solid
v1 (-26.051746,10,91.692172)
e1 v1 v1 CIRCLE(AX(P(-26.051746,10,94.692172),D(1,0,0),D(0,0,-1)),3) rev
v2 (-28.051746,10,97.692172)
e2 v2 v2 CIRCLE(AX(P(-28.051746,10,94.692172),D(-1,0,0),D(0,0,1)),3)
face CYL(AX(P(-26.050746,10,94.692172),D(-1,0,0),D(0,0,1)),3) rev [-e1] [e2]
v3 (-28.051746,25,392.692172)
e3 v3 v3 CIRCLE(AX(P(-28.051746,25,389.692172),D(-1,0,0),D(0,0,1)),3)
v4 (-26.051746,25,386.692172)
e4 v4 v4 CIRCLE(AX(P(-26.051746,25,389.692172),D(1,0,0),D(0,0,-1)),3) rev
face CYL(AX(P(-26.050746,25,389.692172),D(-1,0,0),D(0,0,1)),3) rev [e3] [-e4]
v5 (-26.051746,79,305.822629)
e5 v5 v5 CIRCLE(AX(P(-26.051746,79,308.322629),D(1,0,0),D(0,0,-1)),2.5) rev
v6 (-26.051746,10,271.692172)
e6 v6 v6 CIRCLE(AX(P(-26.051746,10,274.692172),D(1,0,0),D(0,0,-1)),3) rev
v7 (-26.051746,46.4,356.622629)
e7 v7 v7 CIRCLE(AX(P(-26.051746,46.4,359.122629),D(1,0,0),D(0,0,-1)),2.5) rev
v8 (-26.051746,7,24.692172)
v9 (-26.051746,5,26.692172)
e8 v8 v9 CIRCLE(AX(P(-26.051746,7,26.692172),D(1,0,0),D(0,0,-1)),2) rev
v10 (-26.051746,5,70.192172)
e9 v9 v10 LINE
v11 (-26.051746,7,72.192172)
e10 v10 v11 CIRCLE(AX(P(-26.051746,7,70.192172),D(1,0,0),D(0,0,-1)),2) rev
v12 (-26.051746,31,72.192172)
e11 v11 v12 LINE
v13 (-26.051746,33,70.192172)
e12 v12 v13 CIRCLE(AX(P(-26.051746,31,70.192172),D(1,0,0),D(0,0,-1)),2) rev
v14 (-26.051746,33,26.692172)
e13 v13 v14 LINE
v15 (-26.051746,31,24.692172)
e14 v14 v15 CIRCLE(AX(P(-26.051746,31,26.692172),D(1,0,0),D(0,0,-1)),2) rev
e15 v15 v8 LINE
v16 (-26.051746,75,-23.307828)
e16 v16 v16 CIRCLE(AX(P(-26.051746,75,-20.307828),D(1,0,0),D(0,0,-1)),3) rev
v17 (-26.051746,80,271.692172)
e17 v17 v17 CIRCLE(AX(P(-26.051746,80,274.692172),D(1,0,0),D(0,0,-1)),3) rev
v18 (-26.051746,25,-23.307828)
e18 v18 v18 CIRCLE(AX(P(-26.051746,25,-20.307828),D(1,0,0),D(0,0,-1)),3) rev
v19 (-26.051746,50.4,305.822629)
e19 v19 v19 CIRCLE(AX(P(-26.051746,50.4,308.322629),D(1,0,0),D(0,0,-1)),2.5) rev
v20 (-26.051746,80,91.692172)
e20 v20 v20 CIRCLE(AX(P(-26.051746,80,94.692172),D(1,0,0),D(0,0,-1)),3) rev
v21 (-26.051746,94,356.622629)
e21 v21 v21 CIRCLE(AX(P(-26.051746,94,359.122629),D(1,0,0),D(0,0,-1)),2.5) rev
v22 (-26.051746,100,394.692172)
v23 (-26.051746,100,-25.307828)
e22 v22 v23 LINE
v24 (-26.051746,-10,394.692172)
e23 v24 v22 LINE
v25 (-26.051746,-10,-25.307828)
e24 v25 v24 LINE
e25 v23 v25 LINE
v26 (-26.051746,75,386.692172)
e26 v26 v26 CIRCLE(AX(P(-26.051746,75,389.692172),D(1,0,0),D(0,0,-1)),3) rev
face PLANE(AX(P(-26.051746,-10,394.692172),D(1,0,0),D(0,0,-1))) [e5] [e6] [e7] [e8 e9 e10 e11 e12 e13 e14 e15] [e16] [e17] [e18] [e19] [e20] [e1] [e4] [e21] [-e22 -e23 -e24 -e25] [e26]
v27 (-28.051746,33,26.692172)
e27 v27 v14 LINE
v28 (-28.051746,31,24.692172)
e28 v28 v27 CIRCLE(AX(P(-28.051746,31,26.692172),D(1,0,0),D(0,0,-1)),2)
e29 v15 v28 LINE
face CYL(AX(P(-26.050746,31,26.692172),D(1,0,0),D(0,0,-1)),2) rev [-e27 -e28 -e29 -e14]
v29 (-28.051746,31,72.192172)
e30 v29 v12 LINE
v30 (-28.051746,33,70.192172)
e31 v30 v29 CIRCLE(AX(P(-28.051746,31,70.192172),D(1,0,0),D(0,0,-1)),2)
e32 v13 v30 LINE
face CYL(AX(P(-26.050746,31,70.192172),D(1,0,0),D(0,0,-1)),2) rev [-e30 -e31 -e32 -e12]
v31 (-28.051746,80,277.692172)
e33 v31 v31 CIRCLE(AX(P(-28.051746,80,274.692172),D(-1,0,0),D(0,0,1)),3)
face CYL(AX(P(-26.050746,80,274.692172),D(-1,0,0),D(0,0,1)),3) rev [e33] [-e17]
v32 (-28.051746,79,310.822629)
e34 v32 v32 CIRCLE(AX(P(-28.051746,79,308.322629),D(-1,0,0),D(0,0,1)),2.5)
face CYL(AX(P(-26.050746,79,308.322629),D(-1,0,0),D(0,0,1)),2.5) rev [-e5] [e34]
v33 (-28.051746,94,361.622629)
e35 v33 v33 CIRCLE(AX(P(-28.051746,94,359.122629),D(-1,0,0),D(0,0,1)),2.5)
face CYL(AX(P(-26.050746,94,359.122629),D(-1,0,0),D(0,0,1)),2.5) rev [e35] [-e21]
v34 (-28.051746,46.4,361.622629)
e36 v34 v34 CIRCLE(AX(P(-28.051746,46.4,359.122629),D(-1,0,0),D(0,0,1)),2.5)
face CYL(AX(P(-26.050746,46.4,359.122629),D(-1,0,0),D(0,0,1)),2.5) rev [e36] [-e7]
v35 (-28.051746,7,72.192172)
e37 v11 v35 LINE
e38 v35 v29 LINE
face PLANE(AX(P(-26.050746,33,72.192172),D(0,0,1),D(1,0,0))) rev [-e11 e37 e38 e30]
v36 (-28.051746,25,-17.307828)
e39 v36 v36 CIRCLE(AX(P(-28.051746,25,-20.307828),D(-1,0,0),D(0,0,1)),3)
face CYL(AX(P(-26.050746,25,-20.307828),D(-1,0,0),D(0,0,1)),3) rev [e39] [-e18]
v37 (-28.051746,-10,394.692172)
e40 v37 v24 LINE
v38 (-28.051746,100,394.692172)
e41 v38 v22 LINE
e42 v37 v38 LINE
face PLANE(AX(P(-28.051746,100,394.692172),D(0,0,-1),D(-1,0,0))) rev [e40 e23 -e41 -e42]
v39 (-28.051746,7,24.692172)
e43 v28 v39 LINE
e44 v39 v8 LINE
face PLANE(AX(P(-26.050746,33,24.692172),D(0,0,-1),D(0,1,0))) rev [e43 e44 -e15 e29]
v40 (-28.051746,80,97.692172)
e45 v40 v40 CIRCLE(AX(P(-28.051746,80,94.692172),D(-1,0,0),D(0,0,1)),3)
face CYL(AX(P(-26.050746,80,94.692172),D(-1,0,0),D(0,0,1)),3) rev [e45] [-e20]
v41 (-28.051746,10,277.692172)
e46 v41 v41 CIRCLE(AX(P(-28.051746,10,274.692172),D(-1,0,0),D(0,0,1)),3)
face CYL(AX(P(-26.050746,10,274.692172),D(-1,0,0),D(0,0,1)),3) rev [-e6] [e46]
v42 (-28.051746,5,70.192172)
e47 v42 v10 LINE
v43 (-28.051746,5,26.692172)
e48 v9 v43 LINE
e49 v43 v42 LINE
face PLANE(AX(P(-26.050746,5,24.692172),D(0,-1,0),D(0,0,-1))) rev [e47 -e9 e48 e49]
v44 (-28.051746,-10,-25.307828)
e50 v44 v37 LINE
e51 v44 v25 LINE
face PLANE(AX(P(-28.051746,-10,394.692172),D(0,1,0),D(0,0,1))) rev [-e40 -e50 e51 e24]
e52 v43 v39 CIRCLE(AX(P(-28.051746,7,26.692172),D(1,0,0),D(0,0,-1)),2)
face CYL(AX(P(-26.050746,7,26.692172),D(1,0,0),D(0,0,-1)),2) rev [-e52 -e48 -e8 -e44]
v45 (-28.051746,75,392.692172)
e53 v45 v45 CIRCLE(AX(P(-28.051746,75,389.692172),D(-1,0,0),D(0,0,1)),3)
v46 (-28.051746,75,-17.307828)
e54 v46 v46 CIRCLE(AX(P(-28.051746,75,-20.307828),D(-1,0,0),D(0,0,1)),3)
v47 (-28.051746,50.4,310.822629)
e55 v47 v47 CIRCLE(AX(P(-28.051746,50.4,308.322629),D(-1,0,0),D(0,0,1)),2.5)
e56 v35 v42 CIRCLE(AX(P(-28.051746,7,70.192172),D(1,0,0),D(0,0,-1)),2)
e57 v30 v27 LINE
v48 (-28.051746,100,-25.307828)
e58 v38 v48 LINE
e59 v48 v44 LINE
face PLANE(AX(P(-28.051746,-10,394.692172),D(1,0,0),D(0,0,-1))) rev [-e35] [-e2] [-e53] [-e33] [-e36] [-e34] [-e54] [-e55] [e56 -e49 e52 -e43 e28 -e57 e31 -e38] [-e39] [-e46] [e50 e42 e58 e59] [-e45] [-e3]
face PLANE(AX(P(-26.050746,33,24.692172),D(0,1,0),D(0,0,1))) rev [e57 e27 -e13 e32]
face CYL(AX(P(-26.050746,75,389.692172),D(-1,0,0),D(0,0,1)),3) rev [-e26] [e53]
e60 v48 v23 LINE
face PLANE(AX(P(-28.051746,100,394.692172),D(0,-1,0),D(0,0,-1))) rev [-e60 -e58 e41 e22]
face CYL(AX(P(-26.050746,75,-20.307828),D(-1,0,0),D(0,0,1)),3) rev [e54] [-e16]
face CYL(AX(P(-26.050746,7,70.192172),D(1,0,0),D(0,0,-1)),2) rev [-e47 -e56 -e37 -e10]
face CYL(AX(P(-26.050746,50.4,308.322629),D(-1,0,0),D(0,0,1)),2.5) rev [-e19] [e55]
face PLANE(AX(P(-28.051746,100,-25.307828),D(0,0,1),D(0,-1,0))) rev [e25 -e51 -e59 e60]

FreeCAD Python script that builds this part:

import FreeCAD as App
import Part
import Sketcher

V = App.Vector


def edges_at(feature, points):
    """Names of the edges that pass closest to the given points."""
    edges = feature.Shape.Edges
    near = lambda p: min(range(len(edges)), key=lambda i: edges[i].distToShape(Part.Vertex(*p))[0])
    return sorted({f"Edge{near(p) + 1}" for p in points})


def add_polygon(sketch, points):
    """Adds a closed chain of lines whose ends are joined by coincident constraints."""
    first, n = sketch.GeometryCount, len(points)
    for a, b in zip(points, points[1:] + points[:1]):
        sketch.addGeometry(Part.LineSegment(App.Vector(*a, 0), App.Vector(*b, 0)), False)
    for i in range(n):
        sketch.addConstraint(Sketcher.Constraint("Coincident", first + i, 2, first + (i + 1) % n, 1))

doc = App.newDocument("Part")
params = doc.addObject("Spreadsheet::Sheet", "Params")
for row, (alias, value) in enumerate([
    ("sketch1_width", "110 mm"),
    ("sketch1_height", "420 mm"),
    ("pad1_length", "2 mm"),
    ("sketch2_diameter", "6 mm"),
    ("sketch3_diameter", "6 mm"),
    ("sketch4_diameter", "6 mm"),
    ("sketch5_diameter", "6 mm"),
    ("sketch6_diameter", "6 mm"),
    ("sketch7_diameter", "6 mm"),
    ("sketch8_diameter", "6 mm"),
    ("sketch9_diameter", "6 mm"),
    ("sketch10_diameter", "5 mm"),
    ("sketch11_diameter", "5 mm"),
    ("sketch12_diameter", "5 mm"),
    ("sketch13_diameter", "5 mm"),
    ("sketch14_width", "28 mm"),
    ("sketch14_height", "47.5 mm"),
    ("fillet_radius", "2 mm"),
], start=1):
    params.set(f"A{row}", alias)
    params.set(f"B{row}", "=" + value)
    params.setAlias(f"B{row}", alias)

body = doc.addObject("PartDesign::Body", "Body")

sketch1 = body.newObject("Sketcher::SketchObject", "Sketch")
sketch1.AttachmentSupport = (doc.getObject("YZ_Plane"), [""])
sketch1.MapMode = "FlatFace"
sketch1.AttachmentOffset = App.Placement(V(0, 0, -26.051746), App.Rotation())
add_polygon(sketch1, [(100, -25), (-10, -25), (-10, 395), (100, 395)])
sketch1.addConstraint([
    Sketcher.Constraint("Horizontal", 0),
    Sketcher.Constraint("Vertical", 1),
    Sketcher.Constraint("Horizontal", 2),
    Sketcher.Constraint("Vertical", 3),
    Sketcher.Constraint("DistanceX", 0, 2, 0, 1, 110.0),
    Sketcher.Constraint("DistanceY", 1, 1, 1, 2, 420.0),
    Sketcher.Constraint("DistanceX", 0, 2, -1, 1, 10.0),
    Sketcher.Constraint("DistanceY", 0, 2, -1, 1, 25.307828),
])
sketch1.setExpression("Constraints[8]", "Params.sketch1_width")
sketch1.setExpression("Constraints[9]", "Params.sketch1_height")
pad1 = body.newObject("PartDesign::Pad", "Pad")
pad1.Profile = sketch1
pad1.setExpression("Length", "Params.pad1_length")
pad1.Reversed = True

sketch2 = body.newObject("Sketcher::SketchObject", "Sketch001")
sketch2.AttachmentSupport = (doc.getObject("YZ_Plane"), [""])
sketch2.MapMode = "FlatFace"
sketch2.AttachmentOffset = App.Placement(V(0, 0, -28.051746), App.Rotation())
sketch2.addGeometry(Part.Circle(V(75, -20.3, 0), V(0, 0, 1), 3), False)
sketch2.addConstraint([
    Sketcher.Constraint("Diameter", 0, 6.0),
    Sketcher.Constraint("DistanceX", -1, 1, 0, 3, 75.0),
    Sketcher.Constraint("DistanceY", 0, 3, -1, 1, 20.307828),
])
sketch2.setExpression("Constraints[0]", "Params.sketch2_diameter")
pocket1 = body.newObject("PartDesign::Pocket", "Pocket")
pocket1.Profile = sketch2
pocket1.Type = "UpToFirst"
pocket1.Reversed = True

sketch3 = body.newObject("Sketcher::SketchObject", "Sketch002")
sketch3.AttachmentSupport = (doc.getObject("YZ_Plane"), [""])
sketch3.MapMode = "FlatFace"
sketch3.AttachmentOffset = App.Placement(V(0, 0, -28.051746), App.Rotation())
sketch3.addGeometry(Part.Circle(V(25, -20.3, 0), V(0, 0, 1), 3), False)
sketch3.addConstraint([
    Sketcher.Constraint("Diameter", 0, 6.0),
    Sketcher.Constraint("DistanceX", -1, 1, 0, 3, 25.0),
    Sketcher.Constraint("DistanceY", 0, 3, -1, 1, 20.307828),
])
sketch3.setExpression("Constraints[0]", "Params.sketch3_diameter")
pocket2 = body.newObject("PartDesign::Pocket", "Pocket001")
pocket2.Profile = sketch3
pocket2.Type = "UpToFirst"
pocket2.Reversed = True

sketch4 = body.newObject("Sketcher::SketchObject", "Sketch003")
sketch4.AttachmentSupport = (doc.getObject("YZ_Plane"), [""])
sketch4.MapMode = "FlatFace"
sketch4.AttachmentOffset = App.Placement(V(0, 0, -28.051746), App.Rotation())
sketch4.addGeometry(Part.Circle(V(75, 389.7, 0), V(0, 0, 1), 3), False)
sketch4.addConstraint([
    Sketcher.Constraint("Diameter", 0, 6.0),
    Sketcher.Constraint("DistanceX", -1, 1, 0, 3, 75.0),
    Sketcher.Constraint("DistanceY", -1, 1, 0, 3, 389.692172),
])
sketch4.setExpression("Constraints[0]", "Params.sketch4_diameter")
pocket3 = body.newObject("PartDesign::Pocket", "Pocket002")
pocket3.Profile = sketch4
pocket3.Type = "UpToFirst"
pocket3.Reversed = True

sketch5 = body.newObject("Sketcher::SketchObject", "Sketch004")
sketch5.AttachmentSupport = (doc.getObject("YZ_Plane"), [""])
sketch5.MapMode = "FlatFace"
sketch5.AttachmentOffset = App.Placement(V(0, 0, -28.051746), App.Rotation())
sketch5.addGeometry(Part.Circle(V(25, 389.7, 0), V(0, 0, 1), 3), False)
sketch5.addConstraint([
    Sketcher.Constraint("Diameter", 0, 6.0),
    Sketcher.Constraint("DistanceX", -1, 1, 0, 3, 25.0),
    Sketcher.Constraint("DistanceY", -1, 1, 0, 3, 389.692172),
])
sketch5.setExpression("Constraints[0]", "Params.sketch5_diameter")
pocket4 = body.newObject("PartDesign::Pocket", "Pocket003")
pocket4.Profile = sketch5
pocket4.Type = "UpToFirst"
pocket4.Reversed = True

sketch6 = body.newObject("Sketcher::SketchObject", "Sketch005")
sketch6.AttachmentSupport = (doc.getObject("YZ_Plane"), [""])
sketch6.MapMode = "FlatFace"
sketch6.AttachmentOffset = App.Placement(V(0, 0, -28.051746), App.Rotation())
sketch6.addGeometry(Part.Circle(V(10, 94.7, 0), V(0, 0, 1), 3), False)
sketch6.addConstraint([
    Sketcher.Constraint("Diameter", 0, 6.0),
    Sketcher.Constraint("DistanceX", -1, 1, 0, 3, 10.0),
    Sketcher.Constraint("DistanceY", -1, 1, 0, 3, 94.692172),
])
sketch6.setExpression("Constraints[0]", "Params.sketch6_diameter")
pocket5 = body.newObject("PartDesign::Pocket", "Pocket004")
pocket5.Profile = sketch6
pocket5.Type = "UpToFirst"
pocket5.Reversed = True

sketch7 = body.newObject("Sketcher::SketchObject", "Sketch006")
sketch7.AttachmentSupport = (doc.getObject("YZ_Plane"), [""])
sketch7.MapMode = "FlatFace"
sketch7.AttachmentOffset = App.Placement(V(0, 0, -28.051746), App.Rotation())
sketch7.addGeometry(Part.Circle(V(10, 274.7, 0), V(0, 0, 1), 3), False)
sketch7.addConstraint([
    Sketcher.Constraint("Diameter", 0, 6.0),
    Sketcher.Constraint("DistanceX", -1, 1, 0, 3, 10.0),
    Sketcher.Constraint("DistanceY", -1, 1, 0, 3, 274.692172),
])
sketch7.setExpression("Constraints[0]", "Params.sketch7_diameter")
pocket6 = body.newObject("PartDesign::Pocket", "Pocket005")
pocket6.Profile = sketch7
pocket6.Type = "UpToFirst"
pocket6.Reversed = True

sketch8 = body.newObject("Sketcher::SketchObject", "Sketch007")
sketch8.AttachmentSupport = (doc.getObject("YZ_Plane"), [""])
sketch8.MapMode = "FlatFace"
sketch8.AttachmentOffset = App.Placement(V(0, 0, -28.051746), App.Rotation())
sketch8.addGeometry(Part.Circle(V(80, 94.7, 0), V(0, 0, 1), 3), False)
sketch8.addConstraint([
    Sketcher.Constraint("Diameter", 0, 6.0),
    Sketcher.Constraint("DistanceX", -1, 1, 0, 3, 80.0),
    Sketcher.Constraint("DistanceY", -1, 1, 0, 3, 94.692172),
])
sketch8.setExpression("Constraints[0]", "Params.sketch8_diameter")
pocket7 = body.newObject("PartDesign::Pocket", "Pocket006")
pocket7.Profile = sketch8
pocket7.Type = "UpToFirst"
pocket7.Reversed = True

sketch9 = body.newObject("Sketcher::SketchObject", "Sketch008")
sketch9.AttachmentSupport = (doc.getObject("YZ_Plane"), [""])
sketch9.MapMode = "FlatFace"
sketch9.AttachmentOffset = App.Placement(V(0, 0, -28.051746), App.Rotation())
sketch9.addGeometry(Part.Circle(V(80, 274.7, 0), V(0, 0, 1), 3), False)
sketch9.addConstraint([
    Sketcher.Constraint("Diameter", 0, 6.0),
    Sketcher.Constraint("DistanceX", -1, 1, 0, 3, 80.0),
    Sketcher.Constraint("DistanceY", -1, 1, 0, 3, 274.692172),
])
sketch9.setExpression("Constraints[0]", "Params.sketch9_diameter")
pocket8 = body.newObject("PartDesign::Pocket", "Pocket007")
pocket8.Profile = sketch9
pocket8.Type = "UpToFirst"
pocket8.Reversed = True

sketch10 = body.newObject("Sketcher::SketchObject", "Sketch009")
sketch10.AttachmentSupport = (doc.getObject("YZ_Plane"), [""])
sketch10.MapMode = "FlatFace"
sketch10.AttachmentOffset = App.Placement(V(0, 0, -28.051746), App.Rotation())
sketch10.addGeometry(Part.Circle(V(94, 359.1, 0), V(0, 0, 1), 2.5), False)
sketch10.addConstraint([
    Sketcher.Constraint("Diameter", 0, 5.0),
    Sketcher.Constraint("DistanceX", -1, 1, 0, 3, 94.0),
    Sketcher.Constraint("DistanceY", -1, 1, 0, 3, 359.122629),
])
sketch10.setExpression("Constraints[0]", "Params.sketch10_diameter")
pocket9 = body.newObject("PartDesign::Pocket", "Pocket008")
pocket9.Profile = sketch10
pocket9.Type = "UpToFirst"
pocket9.Reversed = True

sketch11 = body.newObject("Sketcher::SketchObject", "Sketch010")
sketch11.AttachmentSupport = (doc.getObject("YZ_Plane"), [""])
sketch11.MapMode = "FlatFace"
sketch11.AttachmentOffset = App.Placement(V(0, 0, -28.051746), App.Rotation())
sketch11.addGeometry(Part.Circle(V(79, 308.3, 0), V(0, 0, 1), 2.5), False)
sketch11.addConstraint([
    Sketcher.Constraint("Diameter", 0, 5.0),
    Sketcher.Constraint("DistanceX", -1, 1, 0, 3, 79.0),
    Sketcher.Constraint("DistanceY", -1, 1, 0, 3, 308.322629),
])
sketch11.setExpression("Constraints[0]", "Params.sketch11_diameter")
pocket10 = body.newObject("PartDesign::Pocket", "Pocket009")
pocket10.Profile = sketch11
pocket10.Type = "UpToFirst"
pocket10.Reversed = True

sketch12 = body.newObject("Sketcher::SketchObject", "Sketch011")
sketch12.AttachmentSupport = (doc.getObject("YZ_Plane"), [""])
sketch12.MapMode = "FlatFace"
sketch12.AttachmentOffset = App.Placement(V(0, 0, -28.051746), App.Rotation())
sketch12.addGeometry(Part.Circle(V(50.4, 308.3, 0), V(0, 0, 1), 2.5), False)
sketch12.addConstraint([
    Sketcher.Constraint("Diameter", 0, 5.0),
    Sketcher.Constraint("DistanceX", -1, 1, 0, 3, 50.4),
    Sketcher.Constraint("DistanceY", -1, 1, 0, 3, 308.322629),
])
sketch12.setExpression("Constraints[0]", "Params.sketch12_diameter")
pocket11 = body.newObject("PartDesign::Pocket", "Pocket010")
pocket11.Profile = sketch12
pocket11.Type = "UpToFirst"
pocket11.Reversed = True

sketch13 = body.newObject("Sketcher::SketchObject", "Sketch012")
sketch13.AttachmentSupport = (doc.getObject("YZ_Plane"), [""])
sketch13.MapMode = "FlatFace"
sketch13.AttachmentOffset = App.Placement(V(0, 0, -28.051746), App.Rotation())
sketch13.addGeometry(Part.Circle(V(46.4, 359.1, 0), V(0, 0, 1), 2.5), False)
sketch13.addConstraint([
    Sketcher.Constraint("Diameter", 0, 5.0),
    Sketcher.Constraint("DistanceX", -1, 1, 0, 3, 46.4),
    Sketcher.Constraint("DistanceY", -1, 1, 0, 3, 359.122629),
])
sketch13.setExpression("Constraints[0]", "Params.sketch13_diameter")
pocket12 = body.newObject("PartDesign::Pocket", "Pocket011")
pocket12.Profile = sketch13
pocket12.Type = "UpToFirst"
pocket12.Reversed = True

sketch14 = body.newObject("Sketcher::SketchObject", "Sketch013")
sketch14.AttachmentSupport = (doc.getObject("YZ_Plane"), [""])
sketch14.MapMode = "FlatFace"
sketch14.AttachmentOffset = App.Placement(V(0, 0, -28.051746), App.Rotation())
add_polygon(sketch14, [(33, 25), (5, 25), (5, 72), (33, 72)])
sketch14.addConstraint([
    Sketcher.Constraint("Horizontal", 0),
    Sketcher.Constraint("Vertical", 1),
    Sketcher.Constraint("Horizontal", 2),
    Sketcher.Constraint("Vertical", 3),
    Sketcher.Constraint("DistanceX", 0, 2, 0, 1, 28.0),
    Sketcher.Constraint("DistanceY", 1, 1, 1, 2, 47.5),
    Sketcher.Constraint("DistanceX", -1, 1, 0, 2, 5.0),
    Sketcher.Constraint("DistanceY", -1, 1, 0, 2, 24.692172),
])
sketch14.setExpression("Constraints[8]", "Params.sketch14_width")
sketch14.setExpression("Constraints[9]", "Params.sketch14_height")
pocket13 = body.newObject("PartDesign::Pocket", "Pocket012")
pocket13.Profile = sketch14
pocket13.Type = "UpToFirst"
pocket13.Reversed = True
doc.recompute()

fillet = body.newObject("PartDesign::Fillet", "Fillet")
fillet.Base = (pocket13, edges_at(pocket13, [
    (-27.052, 5, 24.692),
    (-27.052, 33, 24.692),
    (-27.052, 33, 72.192),
    (-27.052, 5, 72.192),
]))
fillet.setExpression("Radius", "Params.fillet_radius")

doc.recompute()
